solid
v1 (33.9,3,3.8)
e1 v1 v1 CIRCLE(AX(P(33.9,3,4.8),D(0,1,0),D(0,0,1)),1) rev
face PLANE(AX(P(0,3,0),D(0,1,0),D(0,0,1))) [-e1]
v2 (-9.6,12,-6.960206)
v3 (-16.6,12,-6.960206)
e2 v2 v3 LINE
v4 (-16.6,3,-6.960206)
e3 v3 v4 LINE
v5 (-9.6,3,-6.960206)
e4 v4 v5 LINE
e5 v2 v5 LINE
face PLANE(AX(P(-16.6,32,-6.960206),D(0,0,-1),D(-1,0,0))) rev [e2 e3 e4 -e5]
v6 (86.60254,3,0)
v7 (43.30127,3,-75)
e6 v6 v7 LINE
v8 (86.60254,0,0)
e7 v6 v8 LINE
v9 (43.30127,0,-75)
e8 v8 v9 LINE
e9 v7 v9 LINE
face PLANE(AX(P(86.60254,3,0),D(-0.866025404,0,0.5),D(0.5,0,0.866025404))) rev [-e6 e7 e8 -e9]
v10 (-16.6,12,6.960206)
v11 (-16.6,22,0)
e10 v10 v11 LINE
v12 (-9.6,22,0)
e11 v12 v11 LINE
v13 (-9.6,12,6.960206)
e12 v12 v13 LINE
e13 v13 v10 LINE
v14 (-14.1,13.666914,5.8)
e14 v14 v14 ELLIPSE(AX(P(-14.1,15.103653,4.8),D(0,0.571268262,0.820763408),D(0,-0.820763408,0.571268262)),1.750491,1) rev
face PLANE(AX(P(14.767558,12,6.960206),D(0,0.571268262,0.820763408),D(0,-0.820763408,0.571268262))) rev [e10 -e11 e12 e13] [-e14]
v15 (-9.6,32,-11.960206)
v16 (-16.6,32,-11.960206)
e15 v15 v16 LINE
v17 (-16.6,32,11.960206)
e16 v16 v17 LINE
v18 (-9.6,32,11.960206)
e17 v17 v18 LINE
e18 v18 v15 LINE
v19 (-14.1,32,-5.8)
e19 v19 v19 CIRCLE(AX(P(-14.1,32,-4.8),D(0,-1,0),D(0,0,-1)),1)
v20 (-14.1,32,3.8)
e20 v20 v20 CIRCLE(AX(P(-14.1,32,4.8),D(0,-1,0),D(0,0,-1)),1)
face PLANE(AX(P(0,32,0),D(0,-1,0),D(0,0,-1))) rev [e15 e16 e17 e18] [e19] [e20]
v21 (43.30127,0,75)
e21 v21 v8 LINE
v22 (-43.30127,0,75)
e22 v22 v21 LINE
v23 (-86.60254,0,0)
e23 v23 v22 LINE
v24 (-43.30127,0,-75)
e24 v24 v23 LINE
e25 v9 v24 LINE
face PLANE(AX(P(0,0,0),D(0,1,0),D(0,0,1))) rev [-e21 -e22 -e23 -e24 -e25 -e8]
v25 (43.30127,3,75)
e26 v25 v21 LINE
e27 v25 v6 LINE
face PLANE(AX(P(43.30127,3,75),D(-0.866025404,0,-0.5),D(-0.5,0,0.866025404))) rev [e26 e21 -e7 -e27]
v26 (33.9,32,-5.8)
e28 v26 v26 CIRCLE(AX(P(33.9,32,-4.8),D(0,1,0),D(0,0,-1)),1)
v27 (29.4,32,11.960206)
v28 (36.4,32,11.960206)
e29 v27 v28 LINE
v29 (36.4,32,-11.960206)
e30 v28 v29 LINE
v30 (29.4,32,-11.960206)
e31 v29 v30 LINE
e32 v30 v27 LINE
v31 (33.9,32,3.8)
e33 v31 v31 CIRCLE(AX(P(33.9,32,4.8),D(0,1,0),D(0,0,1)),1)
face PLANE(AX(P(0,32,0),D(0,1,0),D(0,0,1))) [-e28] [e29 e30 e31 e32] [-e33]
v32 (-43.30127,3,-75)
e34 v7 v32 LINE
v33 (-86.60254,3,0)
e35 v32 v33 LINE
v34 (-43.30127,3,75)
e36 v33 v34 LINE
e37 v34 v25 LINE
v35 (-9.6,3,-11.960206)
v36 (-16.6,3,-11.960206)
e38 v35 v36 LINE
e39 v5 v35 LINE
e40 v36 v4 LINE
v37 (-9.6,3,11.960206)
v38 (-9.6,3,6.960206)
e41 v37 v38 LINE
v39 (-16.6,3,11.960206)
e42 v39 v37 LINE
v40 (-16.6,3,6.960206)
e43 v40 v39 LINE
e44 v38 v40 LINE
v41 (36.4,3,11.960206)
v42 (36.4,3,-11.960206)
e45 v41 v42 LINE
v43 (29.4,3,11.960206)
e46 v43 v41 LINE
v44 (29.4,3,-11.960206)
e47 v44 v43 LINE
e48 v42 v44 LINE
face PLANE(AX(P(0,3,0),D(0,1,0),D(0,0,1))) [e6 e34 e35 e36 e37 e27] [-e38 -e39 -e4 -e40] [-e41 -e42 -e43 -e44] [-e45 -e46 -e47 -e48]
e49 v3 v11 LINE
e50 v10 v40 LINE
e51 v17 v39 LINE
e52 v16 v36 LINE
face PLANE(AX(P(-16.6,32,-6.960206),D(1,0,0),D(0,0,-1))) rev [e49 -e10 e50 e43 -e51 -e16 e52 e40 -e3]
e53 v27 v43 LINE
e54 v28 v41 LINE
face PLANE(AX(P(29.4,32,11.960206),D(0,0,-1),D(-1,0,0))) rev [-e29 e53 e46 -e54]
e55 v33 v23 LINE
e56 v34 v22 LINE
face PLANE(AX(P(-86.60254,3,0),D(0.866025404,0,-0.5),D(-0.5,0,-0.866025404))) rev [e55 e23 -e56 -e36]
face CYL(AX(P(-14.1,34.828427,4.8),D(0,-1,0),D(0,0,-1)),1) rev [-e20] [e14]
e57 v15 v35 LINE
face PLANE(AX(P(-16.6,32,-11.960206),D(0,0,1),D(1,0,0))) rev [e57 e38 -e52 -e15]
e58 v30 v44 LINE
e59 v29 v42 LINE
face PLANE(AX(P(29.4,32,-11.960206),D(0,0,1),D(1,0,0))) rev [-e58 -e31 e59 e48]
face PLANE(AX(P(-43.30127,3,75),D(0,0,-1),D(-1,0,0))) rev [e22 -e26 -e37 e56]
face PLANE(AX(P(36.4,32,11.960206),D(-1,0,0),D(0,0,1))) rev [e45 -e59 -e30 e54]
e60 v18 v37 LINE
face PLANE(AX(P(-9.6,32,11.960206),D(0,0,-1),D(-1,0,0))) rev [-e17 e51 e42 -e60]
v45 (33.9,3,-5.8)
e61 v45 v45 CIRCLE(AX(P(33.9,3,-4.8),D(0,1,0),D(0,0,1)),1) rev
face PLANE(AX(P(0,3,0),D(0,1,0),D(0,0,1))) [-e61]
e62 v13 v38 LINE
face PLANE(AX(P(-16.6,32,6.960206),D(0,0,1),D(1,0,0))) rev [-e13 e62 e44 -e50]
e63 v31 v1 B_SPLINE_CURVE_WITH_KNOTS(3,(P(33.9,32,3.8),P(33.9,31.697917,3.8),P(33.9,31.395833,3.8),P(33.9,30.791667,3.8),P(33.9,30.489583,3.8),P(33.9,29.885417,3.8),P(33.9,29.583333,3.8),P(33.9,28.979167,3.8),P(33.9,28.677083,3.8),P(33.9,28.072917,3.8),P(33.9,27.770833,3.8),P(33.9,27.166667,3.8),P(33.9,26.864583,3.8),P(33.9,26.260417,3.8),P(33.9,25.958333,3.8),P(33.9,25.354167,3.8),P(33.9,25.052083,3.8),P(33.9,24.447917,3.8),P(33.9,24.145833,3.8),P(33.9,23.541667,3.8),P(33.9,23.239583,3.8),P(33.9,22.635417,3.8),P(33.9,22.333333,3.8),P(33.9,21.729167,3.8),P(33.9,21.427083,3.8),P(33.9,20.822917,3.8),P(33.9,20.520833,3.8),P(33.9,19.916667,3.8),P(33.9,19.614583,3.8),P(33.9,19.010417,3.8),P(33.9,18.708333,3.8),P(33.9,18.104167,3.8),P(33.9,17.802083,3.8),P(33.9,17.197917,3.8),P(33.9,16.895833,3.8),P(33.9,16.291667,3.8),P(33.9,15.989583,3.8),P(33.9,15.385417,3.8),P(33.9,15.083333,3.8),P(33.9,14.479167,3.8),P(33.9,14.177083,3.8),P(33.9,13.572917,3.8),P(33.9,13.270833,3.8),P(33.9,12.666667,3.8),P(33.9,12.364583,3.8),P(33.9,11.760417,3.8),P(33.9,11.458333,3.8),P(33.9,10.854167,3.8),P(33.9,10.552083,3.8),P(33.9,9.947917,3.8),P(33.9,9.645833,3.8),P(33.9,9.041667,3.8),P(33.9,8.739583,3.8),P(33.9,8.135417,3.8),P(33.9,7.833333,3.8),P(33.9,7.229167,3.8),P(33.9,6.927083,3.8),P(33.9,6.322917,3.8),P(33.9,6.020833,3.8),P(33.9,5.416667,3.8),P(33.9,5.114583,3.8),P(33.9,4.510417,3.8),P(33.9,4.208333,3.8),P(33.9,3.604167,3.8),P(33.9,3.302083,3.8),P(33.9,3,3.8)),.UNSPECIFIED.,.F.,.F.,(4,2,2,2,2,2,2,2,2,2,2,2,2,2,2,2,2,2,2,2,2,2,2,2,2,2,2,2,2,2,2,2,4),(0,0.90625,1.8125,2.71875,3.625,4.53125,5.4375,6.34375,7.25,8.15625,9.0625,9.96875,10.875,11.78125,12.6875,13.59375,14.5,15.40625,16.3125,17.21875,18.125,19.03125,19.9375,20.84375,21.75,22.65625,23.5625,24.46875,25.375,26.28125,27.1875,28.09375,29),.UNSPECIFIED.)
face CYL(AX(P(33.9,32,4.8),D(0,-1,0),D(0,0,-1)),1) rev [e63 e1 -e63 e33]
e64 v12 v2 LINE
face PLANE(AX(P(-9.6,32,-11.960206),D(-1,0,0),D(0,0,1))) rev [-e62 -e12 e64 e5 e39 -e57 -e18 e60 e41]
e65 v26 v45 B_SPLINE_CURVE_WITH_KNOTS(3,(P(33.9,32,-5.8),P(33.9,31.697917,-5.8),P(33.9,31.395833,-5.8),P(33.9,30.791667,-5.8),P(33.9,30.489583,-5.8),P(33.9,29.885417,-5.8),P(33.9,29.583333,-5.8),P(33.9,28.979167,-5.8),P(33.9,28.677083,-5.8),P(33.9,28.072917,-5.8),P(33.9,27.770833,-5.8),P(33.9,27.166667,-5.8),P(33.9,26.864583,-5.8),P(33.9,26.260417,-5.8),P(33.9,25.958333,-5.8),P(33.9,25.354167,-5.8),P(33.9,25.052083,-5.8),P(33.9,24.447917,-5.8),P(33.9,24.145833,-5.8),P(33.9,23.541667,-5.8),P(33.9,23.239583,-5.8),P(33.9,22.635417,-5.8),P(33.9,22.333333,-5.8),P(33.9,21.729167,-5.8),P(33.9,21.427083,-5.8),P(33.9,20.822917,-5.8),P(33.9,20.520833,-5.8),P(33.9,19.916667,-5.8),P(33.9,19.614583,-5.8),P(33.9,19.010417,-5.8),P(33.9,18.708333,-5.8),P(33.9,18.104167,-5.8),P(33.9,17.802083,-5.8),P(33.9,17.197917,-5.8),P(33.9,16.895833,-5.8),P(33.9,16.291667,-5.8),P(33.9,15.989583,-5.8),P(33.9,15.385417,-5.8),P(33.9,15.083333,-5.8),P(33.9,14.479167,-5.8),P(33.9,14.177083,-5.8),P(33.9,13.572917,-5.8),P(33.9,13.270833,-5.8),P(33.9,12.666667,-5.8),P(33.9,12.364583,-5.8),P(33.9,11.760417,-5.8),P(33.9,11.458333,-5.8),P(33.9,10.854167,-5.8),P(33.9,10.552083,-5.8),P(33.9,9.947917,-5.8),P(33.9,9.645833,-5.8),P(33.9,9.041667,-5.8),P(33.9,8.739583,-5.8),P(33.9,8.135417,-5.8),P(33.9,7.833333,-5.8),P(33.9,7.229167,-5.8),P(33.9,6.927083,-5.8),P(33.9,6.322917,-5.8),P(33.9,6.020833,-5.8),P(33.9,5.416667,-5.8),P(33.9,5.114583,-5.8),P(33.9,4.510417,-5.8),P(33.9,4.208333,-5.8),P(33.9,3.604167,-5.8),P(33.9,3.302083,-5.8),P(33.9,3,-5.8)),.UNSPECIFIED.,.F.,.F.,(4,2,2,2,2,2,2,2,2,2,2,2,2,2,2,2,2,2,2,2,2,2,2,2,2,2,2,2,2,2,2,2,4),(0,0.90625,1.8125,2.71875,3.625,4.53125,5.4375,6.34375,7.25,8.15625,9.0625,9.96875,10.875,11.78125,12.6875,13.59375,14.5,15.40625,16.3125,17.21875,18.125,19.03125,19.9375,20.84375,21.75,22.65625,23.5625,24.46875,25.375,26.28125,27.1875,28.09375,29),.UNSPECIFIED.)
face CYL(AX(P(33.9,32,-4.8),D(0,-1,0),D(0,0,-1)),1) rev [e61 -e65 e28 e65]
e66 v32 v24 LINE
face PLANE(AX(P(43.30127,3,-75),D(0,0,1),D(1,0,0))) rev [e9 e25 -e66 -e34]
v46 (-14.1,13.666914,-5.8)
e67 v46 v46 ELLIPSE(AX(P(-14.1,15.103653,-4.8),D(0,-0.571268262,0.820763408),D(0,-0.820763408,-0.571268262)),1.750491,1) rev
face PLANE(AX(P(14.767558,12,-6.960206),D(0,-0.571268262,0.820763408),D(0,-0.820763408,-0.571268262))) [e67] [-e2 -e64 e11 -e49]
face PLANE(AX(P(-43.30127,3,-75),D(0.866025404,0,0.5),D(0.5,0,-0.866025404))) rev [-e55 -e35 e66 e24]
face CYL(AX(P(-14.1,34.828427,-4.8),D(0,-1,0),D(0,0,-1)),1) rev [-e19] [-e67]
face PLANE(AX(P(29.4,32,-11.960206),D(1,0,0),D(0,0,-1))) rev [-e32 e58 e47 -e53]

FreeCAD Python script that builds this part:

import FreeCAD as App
import Part
import Sketcher
from FreeCAD import Vector
Q = App.Units.Quantity

doc = App.newDocument("Part")
body = doc.addObject("PartDesign::Body", "Body")

# Sketch on XZ plane
sketch1 = body.newObject("Sketcher::SketchObject", "Sketch")
sketch1.AttachmentSupport = (doc.getObject("XZ_Plane"), [""])
sketch1.MapMode = "FlatFace"
sketch1.addGeometry([
    Part.LineSegment(Vector(87, 0, 0), Vector(43, -75, 0)),  # 0
    Part.LineSegment(Vector(43, -75, 0), Vector(-43, -75, 0)),  # 1
    Part.LineSegment(Vector(-43, -75, 0), Vector(-87, 0, 0)),  # 2
    Part.LineSegment(Vector(-87, 0, 0), Vector(-43, 75, 0)),  # 3
    Part.LineSegment(Vector(-43, 75, 0), Vector(43, 75, 0)),  # 4
    Part.LineSegment(Vector(43, 75, 0), Vector(87, 0, 0)),  # 5
], False)
sketch1.addConstraint([
    Sketcher.Constraint("Coincident", 0, 2, 1, 1),
    Sketcher.Constraint("Coincident", 1, 2, 2, 1),
    Sketcher.Constraint("Coincident", 2, 2, 3, 1),
    Sketcher.Constraint("Coincident", 3, 2, 4, 1),
    Sketcher.Constraint("Coincident", 4, 2, 5, 1),
    Sketcher.Constraint("Coincident", 5, 2, 0, 1),
    Sketcher.Constraint("Horizontal", 1),
    Sketcher.Constraint("Horizontal", 4),
    Sketcher.Constraint("Symmetric", 0, 2, 3, 2, -1, 1),
    Sketcher.Constraint("Symmetric", 2, 2, 5, 2, -1, 1),
    Sketcher.Constraint("PointOnObject", 2, 2, -1),
    Sketcher.Constraint("Parallel", 2, 5),
    Sketcher.Constraint("Vertical", 1, 2, 3, 2),
    Sketcher.Constraint("Angle", 0, Q("-120 deg")),
    Sketcher.Constraint("DistanceY", 0, 2, -1, 1, 75.0),
    Sketcher.Constraint("DistanceX", 1, 2, 1, 1, 86.60254),
])
pad1 = body.newObject("PartDesign::Pad", "Pad")
pad1.Profile = sketch1
pad1.Length = 3
pad1.Reversed = True

# Sketch on XZ plane
sketch2 = body.newObject("Sketcher::SketchObject", "Sketch001")
sketch2.AttachmentSupport = (doc.getObject("XZ_Plane"), [""])
sketch2.MapMode = "FlatFace"
sketch2.AttachmentOffset = App.Placement(Vector(0, 0, -3), App.Rotation())
sketch2.addGeometry([
    Part.Circle(Vector(-14.1, 4.8, 0), Vector(0, 0, 1), 1),  # 0
    Part.Circle(Vector(-14.1, -4.8, 0), Vector(0, 0, 1), 1),  # 1
    Part.LineSegment(Vector(29.4, -12, 0), Vector(29.4, 12, 0)),  # 2
    Part.LineSegment(Vector(29.4, 12, 0), Vector(36.4, 12, 0)),  # 3
    Part.LineSegment(Vector(36.4, 12, 0), Vector(36.4, -12, 0)),  # 4
    Part.LineSegment(Vector(36.4, -12, 0), Vector(29.4, -12, 0)),  # 5
    Part.Circle(Vector(33.9, 4.8, 0), Vector(0, 0, 1), 1),  # 6
    Part.Circle(Vector(33.9, -4.8, 0), Vector(0, 0, 1), 1),  # 7
    Part.LineSegment(Vector(-16.6, -12, 0), Vector(-16.6, -7, 0)),  # 8
    Part.LineSegment(Vector(-16.6, -7, 0), Vector(-9.6, -7, 0)),  # 9
    Part.LineSegment(Vector(-9.6, -7, 0), Vector(-9.6, -12, 0)),  # 10
    Part.LineSegment(Vector(-9.6, -12, 0), Vector(-16.6, -12, 0)),  # 11
    Part.LineSegment(Vector(-16.6, 7, 0), Vector(-16.6, 12, 0)),  # 12
    Part.LineSegment(Vector(-16.6, 12, 0), Vector(-9.6, 12, 0)),  # 13
    Part.LineSegment(Vector(-9.6, 12, 0), Vector(-9.6, 7, 0)),  # 14
    Part.LineSegment(Vector(-9.6, 7, 0), Vector(-16.6, 7, 0)),  # 15
], False)
sketch2.addConstraint([
    Sketcher.Constraint("Coincident", 2, 2, 3, 1),
    Sketcher.Constraint("Coincident", 3, 2, 4, 1),
    Sketcher.Constraint("Coincident", 4, 2, 5, 1),
    Sketcher.Constraint("Coincident", 5, 2, 2, 1),
    Sketcher.Constraint("Coincident", 8, 2, 9, 1),
    Sketcher.Constraint("Coincident", 9, 2, 10, 1),
    Sketcher.Constraint("Coincident", 10, 2, 11, 1),
    Sketcher.Constraint("Coincident", 11, 2, 8, 1),
    Sketcher.Constraint("Coincident", 12, 2, 13, 1),
    Sketcher.Constraint("Coincident", 13, 2, 14, 1),
    Sketcher.Constraint("Coincident", 14, 2, 15, 1),
    Sketcher.Constraint("Coincident", 15, 2, 12, 1),
    Sketcher.Constraint("Vertical", 2),
    Sketcher.Constraint("Horizontal", 3),
    Sketcher.Constraint("Vertical", 4),
    Sketcher.Constraint("Horizontal", 5),
    Sketcher.Constraint("Vertical", 8),
    Sketcher.Constraint("Horizontal", 9),
    Sketcher.Constraint("Vertical", 10),
    Sketcher.Constraint("Horizontal", 11),
    Sketcher.Constraint("Vertical", 12),
    Sketcher.Constraint("Horizontal", 13),
    Sketcher.Constraint("Vertical", 14),
    Sketcher.Constraint("Horizontal", 15),
    Sketcher.Constraint("Equal", 0, 1),
    Sketcher.Constraint("Equal", 1, 6),
    Sketcher.Constraint("Equal", 6, 7),
    Sketcher.Constraint("Symmetric", 0, 3, 1, 3, -1),
    Sketcher.Constraint("Symmetric", 6, 3, 7, 3, -1),
    Sketcher.Constraint("Symmetric", 11, 2, 12, 2, -1),
    Sketcher.Constraint("Symmetric", 9, 2, 14, 2, -1),
    Sketcher.Constraint("Horizontal", 0, 3, 6, 3),
    Sketcher.Constraint("Horizontal", 5, 2, 10, 2),
    Sketcher.Constraint("Horizontal", 3, 2, 12, 2),
    Sketcher.Constraint("Equal", 5, 9),
    Sketcher.Constraint("Diameter", 0, 2.0),
    Sketcher.Constraint("DistanceX", 3, 1, 3, 2, 7.0),
    Sketcher.Constraint("DistanceY", 8, 1, 8, 2, 5.0),
    Sketcher.Constraint("DistanceX", 0, 3, 6, 3, 48.0),
    Sketcher.Constraint("DistanceX", 8, 2, 5, 2, 46.0),
    Sketcher.Constraint("DistanceX", 0, 3, -1, 1, 14.1),
    Sketcher.Constraint("DistanceY", -1, 1, 0, 3, 4.8),
    Sketcher.Constraint("DistanceX", -1, 1, 2, 2, 29.4),
    Sketcher.Constraint("DistanceY", 2, 1, 2, 2, 23.920413),
])
pad2 = body.newObject("PartDesign::Pad", "Pad001")
pad2.Profile = sketch2
pad2.Length = 29
pad2.Reversed = True

# Sketch on YZ plane
sketch3 = body.newObject("Sketcher::SketchObject", "Sketch002")
sketch3.AttachmentSupport = (doc.getObject("YZ_Plane"), [""])
sketch3.MapMode = "FlatFace"
sketch3.AttachmentOffset = App.Placement(Vector(0, 0, -16.6), App.Rotation())
sketch3.addGeometry([
    Part.LineSegment(Vector(12, -7, 0), Vector(22, 0, 0)),  # 0
    Part.LineSegment(Vector(22, 0, 0), Vector(12, 7, 0)),  # 1
    Part.LineSegment(Vector(12, 7, 0), Vector(32, 7, 0)),  # 2
    Part.LineSegment(Vector(32, 7, 0), Vector(32, -7, 0)),  # 3
    Part.LineSegment(Vector(32, -7, 0), Vector(12, -7, 0)),  # 4
], False)
sketch3.addConstraint([
    Sketcher.Constraint("Coincident", 0, 2, 1, 1),
    Sketcher.Constraint("Coincident", 1, 2, 2, 1),
    Sketcher.Constraint("Coincident", 2, 2, 3, 1),
    Sketcher.Constraint("Coincident", 3, 2, 4, 1),
    Sketcher.Constraint("Coincident", 4, 2, 0, 1),
    Sketcher.Constraint("Horizontal", 2),
    Sketcher.Constraint("Vertical", 3),
    Sketcher.Constraint("Horizontal", 4),
    Sketcher.Constraint("Symmetric", 1, 2, 4, 2, -1),
    Sketcher.Constraint("PointOnObject", 0, 2, -1),
    Sketcher.Constraint("DistanceX", 2, 1, 2, 2, 20.0),
    Sketcher.Constraint("DistanceX", -1, 1, 0, 2, 22.0),
    Sketcher.Constraint("DistanceX", -1, 1, 1, 2, 12.0),
    Sketcher.Constraint("Distance", 0, 12.183779),
])
pad3 = body.newObject("PartDesign::Pad", "Pad002")
pad3.Profile = sketch3
pad3.Length = 7

# Sketch on XZ plane
sketch4 = body.newObject("Sketcher::SketchObject", "Sketch003")
sketch4.AttachmentSupport = (doc.getObject("XZ_Plane"), [""])
sketch4.MapMode = "FlatFace"
sketch4.AttachmentOffset = App.Placement(Vector(0, 0, -3), App.Rotation())
sketch4.addGeometry([
    Part.Circle(Vector(-14.1, 4.8, 0), Vector(0, 0, 1), 1),
    Part.Circle(Vector(-14.1, -4.8, 0), Vector(0, 0, 1), 1),
], False)
sketch4.addConstraint([
    Sketcher.Constraint("Equal", 0, 1),
    Sketcher.Constraint("Symmetric", 0, 3, 1, 3, -1),
    Sketcher.Constraint("Diameter", 0, 2.0),
    Sketcher.Constraint("DistanceX", 0, 3, -1, 1, 14.1),
    Sketcher.Constraint("DistanceY", -1, 1, 0, 3, 4.8),
])
pocket1 = body.newObject("PartDesign::Pocket", "Pocket")
pocket1.Profile = sketch4
pocket1.Length = 29

doc.recompute()
